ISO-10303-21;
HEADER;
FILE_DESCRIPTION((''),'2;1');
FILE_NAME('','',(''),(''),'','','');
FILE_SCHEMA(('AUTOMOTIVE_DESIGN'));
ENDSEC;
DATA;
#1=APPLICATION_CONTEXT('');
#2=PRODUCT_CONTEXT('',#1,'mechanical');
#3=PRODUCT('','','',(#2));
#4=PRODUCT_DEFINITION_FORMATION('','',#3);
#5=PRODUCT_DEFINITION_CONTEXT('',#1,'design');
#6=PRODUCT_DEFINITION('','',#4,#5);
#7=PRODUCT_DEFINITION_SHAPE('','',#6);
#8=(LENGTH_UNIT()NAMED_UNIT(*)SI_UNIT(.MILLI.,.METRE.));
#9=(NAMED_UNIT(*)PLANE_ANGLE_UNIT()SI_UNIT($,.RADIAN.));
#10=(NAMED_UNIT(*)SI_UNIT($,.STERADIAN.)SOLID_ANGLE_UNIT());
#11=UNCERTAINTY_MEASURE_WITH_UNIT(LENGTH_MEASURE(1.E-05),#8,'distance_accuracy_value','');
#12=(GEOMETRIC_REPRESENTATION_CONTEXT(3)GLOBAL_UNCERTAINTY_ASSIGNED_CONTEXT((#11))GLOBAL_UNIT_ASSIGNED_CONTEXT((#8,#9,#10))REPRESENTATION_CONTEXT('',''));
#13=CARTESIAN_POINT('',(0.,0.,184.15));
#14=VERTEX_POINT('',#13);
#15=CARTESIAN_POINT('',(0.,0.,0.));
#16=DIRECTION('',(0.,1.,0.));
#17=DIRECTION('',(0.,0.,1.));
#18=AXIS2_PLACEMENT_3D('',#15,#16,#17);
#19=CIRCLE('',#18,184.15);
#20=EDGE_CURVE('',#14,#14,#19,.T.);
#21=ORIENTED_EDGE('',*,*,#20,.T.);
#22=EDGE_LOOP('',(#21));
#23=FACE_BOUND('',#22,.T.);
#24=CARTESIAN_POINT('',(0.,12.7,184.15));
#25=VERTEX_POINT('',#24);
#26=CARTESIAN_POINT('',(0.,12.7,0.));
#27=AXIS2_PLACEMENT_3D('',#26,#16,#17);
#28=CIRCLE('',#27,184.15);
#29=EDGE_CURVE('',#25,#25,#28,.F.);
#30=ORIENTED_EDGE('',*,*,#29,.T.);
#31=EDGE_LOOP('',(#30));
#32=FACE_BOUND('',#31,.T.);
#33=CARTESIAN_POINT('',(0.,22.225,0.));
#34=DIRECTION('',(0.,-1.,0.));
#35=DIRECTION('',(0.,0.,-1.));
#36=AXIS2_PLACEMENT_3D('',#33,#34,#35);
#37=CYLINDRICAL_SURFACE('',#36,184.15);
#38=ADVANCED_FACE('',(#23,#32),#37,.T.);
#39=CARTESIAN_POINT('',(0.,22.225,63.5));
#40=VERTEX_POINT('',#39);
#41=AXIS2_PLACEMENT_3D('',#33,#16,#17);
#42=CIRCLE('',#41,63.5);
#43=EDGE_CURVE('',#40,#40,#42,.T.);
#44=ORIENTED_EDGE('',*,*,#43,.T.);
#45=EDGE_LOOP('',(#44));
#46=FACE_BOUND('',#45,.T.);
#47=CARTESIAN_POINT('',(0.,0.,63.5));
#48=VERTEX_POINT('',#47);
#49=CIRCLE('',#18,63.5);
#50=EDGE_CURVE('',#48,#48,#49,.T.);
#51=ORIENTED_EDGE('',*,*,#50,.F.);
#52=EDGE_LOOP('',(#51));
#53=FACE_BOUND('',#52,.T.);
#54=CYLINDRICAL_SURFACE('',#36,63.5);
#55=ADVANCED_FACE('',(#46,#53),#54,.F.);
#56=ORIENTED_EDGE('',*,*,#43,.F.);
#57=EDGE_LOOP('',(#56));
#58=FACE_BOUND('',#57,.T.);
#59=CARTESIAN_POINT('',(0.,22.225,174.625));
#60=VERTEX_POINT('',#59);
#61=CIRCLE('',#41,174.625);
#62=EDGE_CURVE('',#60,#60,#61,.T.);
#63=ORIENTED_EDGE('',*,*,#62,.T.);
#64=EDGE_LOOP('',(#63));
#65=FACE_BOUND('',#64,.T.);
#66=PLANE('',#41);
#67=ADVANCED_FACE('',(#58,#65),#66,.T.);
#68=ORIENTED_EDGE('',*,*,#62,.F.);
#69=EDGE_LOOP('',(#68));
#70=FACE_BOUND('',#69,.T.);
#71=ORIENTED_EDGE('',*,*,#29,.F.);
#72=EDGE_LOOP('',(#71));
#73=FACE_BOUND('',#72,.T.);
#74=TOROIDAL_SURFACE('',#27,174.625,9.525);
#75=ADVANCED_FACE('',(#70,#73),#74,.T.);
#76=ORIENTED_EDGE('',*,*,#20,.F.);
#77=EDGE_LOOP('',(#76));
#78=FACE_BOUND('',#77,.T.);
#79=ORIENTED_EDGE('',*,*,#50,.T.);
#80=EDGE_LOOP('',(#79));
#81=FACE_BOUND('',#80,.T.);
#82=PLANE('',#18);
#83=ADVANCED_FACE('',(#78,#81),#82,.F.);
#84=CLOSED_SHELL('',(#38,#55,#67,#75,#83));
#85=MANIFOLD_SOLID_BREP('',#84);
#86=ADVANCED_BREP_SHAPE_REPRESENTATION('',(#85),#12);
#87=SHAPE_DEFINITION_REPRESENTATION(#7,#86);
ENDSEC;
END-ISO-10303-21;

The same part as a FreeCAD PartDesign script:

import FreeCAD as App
import Part
import Sketcher
Q = App.Units.Quantity


def edges_at(feature, points):
    """Names of the edges that pass closest to the given points."""
    edges = feature.Shape.Edges
    near = lambda p: min(range(len(edges)), key=lambda i: edges[i].distToShape(Part.Vertex(*p))[0])
    return sorted({f"Edge{near(p) + 1}" for p in points})

doc = App.newDocument("Part")
body = doc.addObject("PartDesign::Body", "Body")

# Sketch on XZ plane
sketch1 = body.newObject("Sketcher::SketchObject", "Sketch")
sketch1.AttachmentSupport = (doc.getObject("XZ_Plane"), [""])
sketch1.MapMode = "FlatFace"
sketch1.addGeometry(Part.Circle(App.Vector(0, 0, 0), App.Vector(0, 0, 1), 184), False)
sketch1.addGeometry(Part.Circle(App.Vector(0, 0, 0), App.Vector(0, 0, 1), 64), False)
sketch1.addConstraint(Sketcher.Constraint("Coincident", 0, 3, -1, 1))
sketch1.addConstraint(Sketcher.Constraint("Coincident", 1, 3, -1, 1))
sketch1.addConstraint(Sketcher.Constraint("Diameter", 1, Q("5 in")))
sketch1.addConstraint(Sketcher.Constraint("Diameter", 0, Q("14.5 in")))
pad1 = body.newObject("PartDesign::Pad", "Pad")
pad1.Profile = sketch1
pad1.Length = Q("0.875 in")
pad1.Reversed = True
doc.recompute()

fillet = body.newObject("PartDesign::Fillet", "Fillet")
fillet.Base = (pad1, edges_at(pad1, [(-184.15, 22.225, 0)]))
fillet.Radius = Q("0.375 in")

doc.recompute()
